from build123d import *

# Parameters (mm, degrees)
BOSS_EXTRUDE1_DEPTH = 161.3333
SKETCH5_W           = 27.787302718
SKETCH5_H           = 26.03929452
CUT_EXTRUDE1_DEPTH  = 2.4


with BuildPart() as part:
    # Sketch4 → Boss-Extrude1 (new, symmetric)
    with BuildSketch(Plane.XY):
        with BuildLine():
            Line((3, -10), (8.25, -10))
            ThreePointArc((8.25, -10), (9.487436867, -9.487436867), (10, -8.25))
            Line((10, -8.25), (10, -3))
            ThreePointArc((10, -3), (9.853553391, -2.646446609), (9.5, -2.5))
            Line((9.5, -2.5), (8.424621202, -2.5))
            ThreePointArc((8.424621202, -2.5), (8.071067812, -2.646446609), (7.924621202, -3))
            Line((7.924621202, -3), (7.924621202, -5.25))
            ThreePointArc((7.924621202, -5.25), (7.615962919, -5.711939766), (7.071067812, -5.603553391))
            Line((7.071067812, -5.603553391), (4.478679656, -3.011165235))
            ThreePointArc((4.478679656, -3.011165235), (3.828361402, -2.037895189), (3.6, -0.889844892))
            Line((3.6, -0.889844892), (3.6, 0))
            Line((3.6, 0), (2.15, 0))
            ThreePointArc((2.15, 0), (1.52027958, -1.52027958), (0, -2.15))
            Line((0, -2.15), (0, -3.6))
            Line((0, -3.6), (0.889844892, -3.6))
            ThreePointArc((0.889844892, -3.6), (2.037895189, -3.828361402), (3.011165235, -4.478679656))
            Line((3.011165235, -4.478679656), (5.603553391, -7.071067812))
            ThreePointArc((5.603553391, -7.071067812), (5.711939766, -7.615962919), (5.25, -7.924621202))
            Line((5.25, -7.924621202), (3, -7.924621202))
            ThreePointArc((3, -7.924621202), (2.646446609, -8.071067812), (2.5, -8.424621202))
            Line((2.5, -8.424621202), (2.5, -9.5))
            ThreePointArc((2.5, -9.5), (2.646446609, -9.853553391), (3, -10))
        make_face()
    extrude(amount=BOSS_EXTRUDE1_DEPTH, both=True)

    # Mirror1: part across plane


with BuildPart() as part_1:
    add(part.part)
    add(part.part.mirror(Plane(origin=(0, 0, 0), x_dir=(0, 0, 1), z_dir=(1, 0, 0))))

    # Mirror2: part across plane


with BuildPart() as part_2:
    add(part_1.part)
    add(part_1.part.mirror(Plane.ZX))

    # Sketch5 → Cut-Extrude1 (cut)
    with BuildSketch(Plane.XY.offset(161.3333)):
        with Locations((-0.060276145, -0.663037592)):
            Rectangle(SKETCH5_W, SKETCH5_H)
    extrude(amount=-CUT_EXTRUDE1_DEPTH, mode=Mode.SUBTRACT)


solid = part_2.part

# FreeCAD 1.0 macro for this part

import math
import FreeCAD as App
import Part
import Sketcher

V = App.Vector


def add_polygon(sketch, points):
    """Adds a closed chain of lines whose ends are joined by coincident constraints."""
    first, n = sketch.GeometryCount, len(points)
    for a, b in zip(points, points[1:] + points[:1]):
        sketch.addGeometry(Part.LineSegment(App.Vector(*a, 0), App.Vector(*b, 0)), False)
    for i in range(n):
        sketch.addConstraint(Sketcher.Constraint("Coincident", first + i, 2, first + (i + 1) % n, 1))

doc = App.newDocument("Part")
body = doc.addObject("PartDesign::Body", "Body")

# Sketch on XY plane
sketch1 = body.newObject("Sketcher::SketchObject", "Sketch")
sketch1.AttachmentSupport = (doc.getObject("XY_Plane"), [""])
sketch1.MapMode = "FlatFace"
sketch1.addGeometry(Part.LineSegment(V(3, -10, 0), V(8.25, -10, 0)), False)
sketch1.addGeometry(Part.ArcOfCircle(Part.Circle(V(8.25, -8.25, 0), V(0, 0, 1), 1.75), math.radians(-90), math.radians(0)), False)
sketch1.addGeometry(Part.LineSegment(V(10, -8.25, 0), V(10, -3, 0)), False)
sketch1.addGeometry(Part.ArcOfCircle(Part.Circle(V(9.5, -3, 0), V(0, 0, 1), 0.5), math.radians(0), math.radians(90)), False)
sketch1.addGeometry(Part.LineSegment(V(9.5, -2.5, 0), V(8.424621, -2.5, 0)), False)
sketch1.addGeometry(Part.ArcOfCircle(Part.Circle(V(8.424621, -3, 0), V(0, 0, 1), 0.5), math.radians(90), math.radians(180)), False)
sketch1.addGeometry(Part.LineSegment(V(7.924621, -3, 0), V(7.924621, -5.25, 0)), False)
sketch1.addGeometry(Part.ArcOfCircle(Part.Circle(V(7.424621, -5.25, 0), V(0, 0, 1), 0.5), math.radians(-135), math.radians(0)), False)
sketch1.addGeometry(Part.LineSegment(V(7.071068, -5.603553, 0), V(4.47868, -3.011165, 0)), False)
sketch1.addGeometry(Part.ArcOfCircle(Part.Circle(V(6.6, -0.889845, 0), V(0, 0, 1), 3), math.radians(180), math.radians(225)), False)
sketch1.addGeometry(Part.LineSegment(V(3.6, -0.889845, 0), V(3.6, 0, 0)), False)
sketch1.addGeometry(Part.LineSegment(V(3.6, 0, 0), V(2.15, 0, 0)), False)
sketch1.addGeometry(Part.ArcOfCircle(Part.Circle(V(0, 0, 0), V(0, 0, 1), 2.15), math.radians(-90), math.radians(0)), False)
sketch1.addGeometry(Part.LineSegment(V(0, -2.15, 0), V(0, -3.6, 0)), False)
sketch1.addGeometry(Part.LineSegment(V(0, -3.6, 0), V(0.889845, -3.6, 0)), False)
sketch1.addGeometry(Part.ArcOfCircle(Part.Circle(V(0.889845, -6.6, 0), V(0, 0, 1), 3), math.radians(45), math.radians(90)), False)
sketch1.addGeometry(Part.LineSegment(V(3.011165, -4.47868, 0), V(5.603553, -7.071068, 0)), False)
sketch1.addGeometry(Part.ArcOfCircle(Part.Circle(V(5.25, -7.424621, 0), V(0, 0, 1), 0.5), math.radians(-90), math.radians(45)), False)
sketch1.addGeometry(Part.LineSegment(V(5.25, -7.924621, 0), V(3, -7.924621, 0)), False)
sketch1.addGeometry(Part.ArcOfCircle(Part.Circle(V(3, -8.424621, 0), V(0, 0, 1), 0.5), math.radians(90), math.radians(180)), False)
sketch1.addGeometry(Part.LineSegment(V(2.5, -8.424621, 0), V(2.5, -9.5, 0)), False)
sketch1.addGeometry(Part.ArcOfCircle(Part.Circle(V(3, -9.5, 0), V(0, 0, 1), 0.5), math.radians(180), math.radians(270)), False)
sketch1.addConstraint(Sketcher.Constraint("Tangent", 0, 2, 1, 1))
sketch1.addConstraint(Sketcher.Constraint("Tangent", 1, 2, 2, 1))
sketch1.addConstraint(Sketcher.Constraint("Tangent", 2, 2, 3, 1))
sketch1.addConstraint(Sketcher.Constraint("Tangent", 3, 2, 4, 1))
sketch1.addConstraint(Sketcher.Constraint("Tangent", 4, 2, 5, 1))
sketch1.addConstraint(Sketcher.Constraint("Tangent", 5, 2, 6, 1))
sketch1.addConstraint(Sketcher.Constraint("Tangent", 6, 2, 7, 2))
sketch1.addConstraint(Sketcher.Constraint("Tangent", 7, 1, 8, 1))
sketch1.addConstraint(Sketcher.Constraint("Tangent", 8, 2, 9, 2))
sketch1.addConstraint(Sketcher.Constraint("Tangent", 9, 1, 10, 1))
sketch1.addConstraint(Sketcher.Constraint("Coincident", 10, 2, 11, 1))
sketch1.addConstraint(Sketcher.Constraint("Coincident", 11, 2, 12, 2))
sketch1.addConstraint(Sketcher.Constraint("Coincident", 12, 1, 13, 1))
sketch1.addConstraint(Sketcher.Constraint("Coincident", 13, 2, 14, 1))
sketch1.addConstraint(Sketcher.Constraint("Tangent", 14, 2, 15, 2))
sketch1.addConstraint(Sketcher.Constraint("Tangent", 15, 1, 16, 1))
sketch1.addConstraint(Sketcher.Constraint("Tangent", 16, 2, 17, 2))
sketch1.addConstraint(Sketcher.Constraint("Tangent", 17, 1, 18, 1))
sketch1.addConstraint(Sketcher.Constraint("Tangent", 18, 2, 19, 1))
sketch1.addConstraint(Sketcher.Constraint("Tangent", 19, 2, 20, 1))
sketch1.addConstraint(Sketcher.Constraint("Tangent", 20, 2, 21, 1))
sketch1.addConstraint(Sketcher.Constraint("Tangent", 21, 2, 0, 1))
sketch1.addConstraint(Sketcher.Constraint("Horizontal", 0))
sketch1.addConstraint(Sketcher.Constraint("Vertical", 2))
sketch1.addConstraint(Sketcher.Constraint("Horizontal", 4))
sketch1.addConstraint(Sketcher.Constraint("Vertical", 6))
sketch1.addConstraint(Sketcher.Constraint("Vertical", 10))
sketch1.addConstraint(Sketcher.Constraint("Horizontal", 11))
sketch1.addConstraint(Sketcher.Constraint("Vertical", 13))
sketch1.addConstraint(Sketcher.Constraint("Horizontal", 14))
sketch1.addConstraint(Sketcher.Constraint("Horizontal", 18))
sketch1.addConstraint(Sketcher.Constraint("Vertical", 20))
sketch1.addConstraint(Sketcher.Constraint("Coincident", 12, 3, -1, 1))
sketch1.addConstraint(Sketcher.Constraint("Equal", 3, 5))
sketch1.addConstraint(Sketcher.Constraint("Equal", 5, 7))
sketch1.addConstraint(Sketcher.Constraint("Equal", 9, 15))
sketch1.addConstraint(Sketcher.Constraint("Equal", 7, 17))
sketch1.addConstraint(Sketcher.Constraint("Equal", 17, 19))
sketch1.addConstraint(Sketcher.Constraint("Equal", 19, 21))
sketch1.addConstraint(Sketcher.Constraint("PointOnObject", 10, 2, -1))
sketch1.addConstraint(Sketcher.Constraint("PointOnObject", 12, 1, -2))
sketch1.addConstraint(Sketcher.Constraint("Parallel", 8, 16))
sketch1.addConstraint(Sketcher.Constraint("Equal", 0, 2))
sketch1.addConstraint(Sketcher.Constraint("Equal", 18, 6))
sketch1.addConstraint(Sketcher.Constraint("Equal", 14, 10))
sketch1.addConstraint(Sketcher.Constraint("Equal", 11, 13))
sketch1.addConstraint(Sketcher.Constraint("Equal", 4, 20))
sketch1.addConstraint(Sketcher.Constraint("Equal", 8, 16))
sketch1.addConstraint(Sketcher.Constraint("Radius", 9, 3.0))
sketch1.addConstraint(Sketcher.Constraint("Radius", 3, 0.5))
sketch1.addConstraint(Sketcher.Constraint("Radius", 1, 1.75))
sketch1.addConstraint(Sketcher.Constraint("Radius", 12, 2.15))
sketch1.addConstraint(Sketcher.Constraint("DistanceY", 3, 3, -1, 1, 3.0))
sketch1.addConstraint(Sketcher.Constraint("DistanceY", 0, 2, -1, 1, 10.0))
sketch1.addConstraint(Sketcher.Constraint("DistanceY", 1, 3, 7, 3, 3.0))
sketch1.addConstraint(Sketcher.Constraint("DistanceX", 11, 2, 11, 1, 1.45))
sketch1.addConstraint(Sketcher.Constraint("DistanceX", 4, 2, 4, 1, 1.075379))
pad1 = body.newObject("PartDesign::Pad", "Pad")
pad1.Profile = sketch1
pad1.Length = 322.6666
pad1.Midplane = True
body2 = doc.addObject("PartDesign::Body", "Body001")
doc.recompute()

body2.BaseFeature = body
doc.recompute()

mirroring = doc.addObject("Part::Mirroring", "Mirroring")
mirroring.Source = body
mirroring.Base = V(0, 0, 0)
mirroring.Normal = V(1, 0, 0)
body3 = doc.addObject("PartDesign::Body", "Body002")
body3.BaseFeature = mirroring
boolean = body2.newObject("PartDesign::Boolean", "Boolean")
boolean.Type = "Fuse"
boolean.addObjects([body3])
doc.recompute()
body4 = doc.addObject("PartDesign::Body", "Body003")
doc.recompute()

body4.BaseFeature = body2
doc.recompute()

mirroring2 = doc.addObject("Part::Mirroring", "Mirroring001")
mirroring2.Source = body2
mirroring2.Base = V(0, 0, 0)
mirroring2.Normal = V(0, 1, 0)
body5 = doc.addObject("PartDesign::Body", "Body004")
body5.BaseFeature = mirroring2
boolean2 = body4.newObject("PartDesign::Boolean", "Boolean001")
boolean2.Type = "Fuse"
boolean2.addObjects([body5])
doc.recompute()

# Sketch on XY plane
sketch2 = body4.newObject("Sketcher::SketchObject", "Sketch001")
sketch2.AttachmentSupport = (doc.getObject("XY_Plane003"), [""])
sketch2.MapMode = "FlatFace"
sketch2.AttachmentOffset = App.Placement(V(0, 0, 161.3333), App.Rotation())
add_polygon(sketch2, [(-13.953928, 12.35661), (-13.953928, -13.682685), (13.833375, -13.682685), (13.833375, 12.35661)])  # lines 0-3
sketch2.addConstraint(Sketcher.Constraint("Vertical", 0))
sketch2.addConstraint(Sketcher.Constraint("Horizontal", 1))
sketch2.addConstraint(Sketcher.Constraint("Vertical", 2))
sketch2.addConstraint(Sketcher.Constraint("Horizontal", 3))
sketch2.addConstraint(Sketcher.Constraint("DistanceX", 1, 1, 1, 2, 27.787303))
sketch2.addConstraint(Sketcher.Constraint("DistanceY", 0, 2, 0, 1, 26.039295))
sketch2.addConstraint(Sketcher.Constraint("DistanceY", -1, 1, 2, 2, 12.35661))
sketch2.addConstraint(Sketcher.Constraint("DistanceX", 0, 2, -1, 1, 13.953928))
pocket1 = body4.newObject("PartDesign::Pocket", "Pocket")
pocket1.Profile = sketch2
pocket1.Length = 2.4
mirroring.Visibility = False
mirroring2.Visibility = False

doc.recompute()
